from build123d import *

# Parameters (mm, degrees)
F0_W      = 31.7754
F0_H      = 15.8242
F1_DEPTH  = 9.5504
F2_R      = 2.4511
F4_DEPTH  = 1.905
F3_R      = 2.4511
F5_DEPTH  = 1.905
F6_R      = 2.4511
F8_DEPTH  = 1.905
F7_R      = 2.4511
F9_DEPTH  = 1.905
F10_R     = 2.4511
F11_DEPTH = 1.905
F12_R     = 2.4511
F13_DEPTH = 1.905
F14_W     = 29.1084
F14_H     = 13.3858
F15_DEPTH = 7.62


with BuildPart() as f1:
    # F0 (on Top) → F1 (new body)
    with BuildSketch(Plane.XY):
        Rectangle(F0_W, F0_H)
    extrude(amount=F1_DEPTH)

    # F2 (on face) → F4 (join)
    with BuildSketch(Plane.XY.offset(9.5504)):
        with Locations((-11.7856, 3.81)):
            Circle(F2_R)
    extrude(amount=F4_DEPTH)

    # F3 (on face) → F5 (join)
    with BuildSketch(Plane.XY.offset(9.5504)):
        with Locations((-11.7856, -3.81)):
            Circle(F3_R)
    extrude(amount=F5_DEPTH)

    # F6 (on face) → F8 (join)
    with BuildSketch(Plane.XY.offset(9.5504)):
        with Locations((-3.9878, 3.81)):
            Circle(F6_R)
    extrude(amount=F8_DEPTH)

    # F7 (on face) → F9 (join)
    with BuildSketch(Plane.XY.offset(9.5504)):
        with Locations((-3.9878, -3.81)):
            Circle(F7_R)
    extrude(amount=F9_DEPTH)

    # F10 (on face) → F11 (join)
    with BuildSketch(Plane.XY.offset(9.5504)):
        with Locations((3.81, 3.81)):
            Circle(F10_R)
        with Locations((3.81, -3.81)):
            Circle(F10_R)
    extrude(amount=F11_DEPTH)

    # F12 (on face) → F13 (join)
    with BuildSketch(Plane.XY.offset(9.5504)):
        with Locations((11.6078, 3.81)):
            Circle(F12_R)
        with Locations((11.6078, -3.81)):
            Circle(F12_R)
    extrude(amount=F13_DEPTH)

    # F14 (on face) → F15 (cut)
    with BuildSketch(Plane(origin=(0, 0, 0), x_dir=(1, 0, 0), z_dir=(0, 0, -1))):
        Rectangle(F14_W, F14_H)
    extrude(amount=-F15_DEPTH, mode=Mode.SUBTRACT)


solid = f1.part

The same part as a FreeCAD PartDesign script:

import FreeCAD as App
import Part
import Sketcher
Q = App.Units.Quantity

doc = App.newDocument("Part")
body = doc.addObject("PartDesign::Body", "Body")

sketch1 = doc.addObject("Sketcher::SketchObject", "Sketch")
body.addObject(sketch1)
sketch1.AttachmentSupport = (doc.XY_Plane, [""])
sketch1.MapMode = "FlatFace"
sketch1.addGeometry([
    Part.LineSegment(App.Vector(-16, 8, 0), App.Vector(-16, -8, 0)),
    Part.LineSegment(App.Vector(-16, -8, 0), App.Vector(16, -8, 0)),
    Part.LineSegment(App.Vector(16, -8, 0), App.Vector(16, 8, 0)),
    Part.LineSegment(App.Vector(16, 8, 0), App.Vector(-16, 8, 0)),
], False)
sketch1.addConstraint([
    Sketcher.Constraint("Coincident", 0, 2, 1, 1),
    Sketcher.Constraint("Coincident", 1, 2, 2, 1),
    Sketcher.Constraint("Coincident", 2, 2, 3, 1),
    Sketcher.Constraint("Coincident", 3, 2, 0, 1),
    Sketcher.Constraint("Vertical", 0),
    Sketcher.Constraint("Horizontal", 1),
    Sketcher.Constraint("Vertical", 2),
    Sketcher.Constraint("Horizontal", 3),
    Sketcher.Constraint("Symmetric", 0, 2, 2, 2, -1, 1),
    Sketcher.Constraint("DistanceX", 1, 1, 1, 2, Q("1.251 in")),
    Sketcher.Constraint("DistanceY", 0, 2, 0, 1, Q("0.623 in")),
])
pad1 = doc.addObject("PartDesign::Pad", "Pad")
body.addObject(pad1)
pad1.Profile = sketch1
pad1.Length = Q("0.376 in")

sketch2 = doc.addObject("Sketcher::SketchObject", "Sketch001")
body.addObject(sketch2)
sketch2.AttachmentSupport = (doc.XY_Plane, [""])
sketch2.MapMode = "FlatFace"
sketch2.AttachmentOffset = App.Placement(App.Vector(0, 0, 0.376 * 25.4), App.Rotation())
sketch2.addGeometry(Part.Circle(App.Vector(-11.8, 3.8, 0), App.Vector(0, 0, 1), 2.5), False)
sketch2.addConstraint([
    Sketcher.Constraint("Diameter", 0, Q("0.193 in")),
    Sketcher.Constraint("DistanceY", -1, 1, 0, 3, Q("0.15 in")),
    Sketcher.Constraint("DistanceX", 0, 3, -1, 1, Q("0.464 in")),
])
pad2 = doc.addObject("PartDesign::Pad", "Pad001")
body.addObject(pad2)
pad2.Profile = sketch2
pad2.Length = Q("0.075 in")

sketch3 = doc.addObject("Sketcher::SketchObject", "Sketch002")
body.addObject(sketch3)
sketch3.AttachmentSupport = (doc.XY_Plane, [""])
sketch3.MapMode = "FlatFace"
sketch3.AttachmentOffset = App.Placement(App.Vector(0, 0, 0.376 * 25.4), App.Rotation())
sketch3.addGeometry(Part.Circle(App.Vector(-11.8, -3.8, 0), App.Vector(0, 0, 1), 2.5), False)
sketch3.addConstraint([
    Sketcher.Constraint("Diameter", 0, Q("0.193 in")),
    Sketcher.Constraint("DistanceY", 0, 3, -1, 1, Q("0.15 in")),
    Sketcher.Constraint("DistanceX", 0, 3, -1, 1, Q("0.464 in")),
])
pad3 = doc.addObject("PartDesign::Pad", "Pad002")
body.addObject(pad3)
pad3.Profile = sketch3
pad3.Length = Q("0.075 in")

sketch4 = doc.addObject("Sketcher::SketchObject", "Sketch003")
body.addObject(sketch4)
sketch4.AttachmentSupport = (doc.XY_Plane, [""])
sketch4.MapMode = "FlatFace"
sketch4.AttachmentOffset = App.Placement(App.Vector(0, 0, 0.376 * 25.4), App.Rotation())
sketch4.addGeometry(Part.Circle(App.Vector(-4, 3.8, 0), App.Vector(0, 0, 1), 2.5), False)
sketch4.addConstraint([
    Sketcher.Constraint("Diameter", 0, Q("0.193 in")),
    Sketcher.Constraint("DistanceY", -1, 1, 0, 3, Q("0.15 in")),
    Sketcher.Constraint("DistanceX", 0, 3, -1, 1, Q("0.157 in")),
])
pad4 = doc.addObject("PartDesign::Pad", "Pad003")
body.addObject(pad4)
pad4.Profile = sketch4
pad4.Length = Q("0.075 in")

sketch5 = doc.addObject("Sketcher::SketchObject", "Sketch004")
body.addObject(sketch5)
sketch5.AttachmentSupport = (doc.XY_Plane, [""])
sketch5.MapMode = "FlatFace"
sketch5.AttachmentOffset = App.Placement(App.Vector(0, 0, 0.376 * 25.4), App.Rotation())
sketch5.addGeometry(Part.Circle(App.Vector(-4, -3.8, 0), App.Vector(0, 0, 1), 2.5), False)
sketch5.addConstraint([
    Sketcher.Constraint("Diameter", 0, Q("0.193 in")),
    Sketcher.Constraint("DistanceY", 0, 3, -1, 1, Q("0.15 in")),
    Sketcher.Constraint("DistanceX", 0, 3, -1, 1, Q("0.157 in")),
])
pad5 = doc.addObject("PartDesign::Pad", "Pad004")
body.addObject(pad5)
pad5.Profile = sketch5
pad5.Length = Q("0.075 in")

sketch6 = doc.addObject("Sketcher::SketchObject", "Sketch005")
body.addObject(sketch6)
sketch6.AttachmentSupport = (doc.XY_Plane, [""])
sketch6.MapMode = "FlatFace"
sketch6.AttachmentOffset = App.Placement(App.Vector(0, 0, 0.376 * 25.4), App.Rotation())
sketch6.addGeometry([
    Part.Circle(App.Vector(3.8, 3.8, 0), App.Vector(0, 0, 1), 2.5),
    Part.Circle(App.Vector(3.8, -3.8, 0), App.Vector(0, 0, 1), 2.5),
], False)
sketch6.addConstraint([
    Sketcher.Constraint("Equal", 0, 1),
    Sketcher.Constraint("Symmetric", 0, 3, 1, 3, -1),
    Sketcher.Constraint("Diameter", 0, Q("0.193 in")),
    Sketcher.Constraint("DistanceY", 1, 3, 0, 3, Q("0.3 in")),
    Sketcher.Constraint("DistanceX", -1, 1, 0, 3, Q("0.15 in")),
])
pad6 = doc.addObject("PartDesign::Pad", "Pad005")
body.addObject(pad6)
pad6.Profile = sketch6
pad6.Length = Q("0.075 in")

sketch7 = doc.addObject("Sketcher::SketchObject", "Sketch006")
body.addObject(sketch7)
sketch7.AttachmentSupport = (doc.XY_Plane, [""])
sketch7.MapMode = "FlatFace"
sketch7.AttachmentOffset = App.Placement(App.Vector(0, 0, 0.376 * 25.4), App.Rotation())
sketch7.addGeometry([
    Part.Circle(App.Vector(11.6, 3.8, 0), App.Vector(0, 0, 1), 2.5),
    Part.Circle(App.Vector(11.6, -3.8, 0), App.Vector(0, 0, 1), 2.5),
], False)
sketch7.addConstraint([
    Sketcher.Constraint("Equal", 0, 1),
    Sketcher.Constraint("Symmetric", 0, 3, 1, 3, -1),
    Sketcher.Constraint("Diameter", 0, Q("0.193 in")),
    Sketcher.Constraint("DistanceY", 1, 3, 0, 3, Q("0.3 in")),
    Sketcher.Constraint("DistanceX", -1, 1, 0, 3, Q("0.457 in")),
])
pad7 = doc.addObject("PartDesign::Pad", "Pad006")
body.addObject(pad7)
pad7.Profile = sketch7
pad7.Length = Q("0.075 in")

sketch8 = doc.addObject("Sketcher::SketchObject", "Sketch007")
body.addObject(sketch8)
sketch8.AttachmentSupport = (doc.XY_Plane, [""])
sketch8.MapMode = "FlatFace"
sketch8.addGeometry([
    Part.LineSegment(App.Vector(-15, -7, 0), App.Vector(-15, 7, 0)),
    Part.LineSegment(App.Vector(-15, 7, 0), App.Vector(15, 7, 0)),
    Part.LineSegment(App.Vector(15, 7, 0), App.Vector(15, -7, 0)),
    Part.LineSegment(App.Vector(15, -7, 0), App.Vector(-15, -7, 0)),
], False)
sketch8.addConstraint([
    Sketcher.Constraint("Coincident", 0, 2, 1, 1),
    Sketcher.Constraint("Coincident", 1, 2, 2, 1),
    Sketcher.Constraint("Coincident", 2, 2, 3, 1),
    Sketcher.Constraint("Coincident", 3, 2, 0, 1),
    Sketcher.Constraint("Vertical", 0),
    Sketcher.Constraint("Horizontal", 1),
    Sketcher.Constraint("Vertical", 2),
    Sketcher.Constraint("Horizontal", 3),
    Sketcher.Constraint("Symmetric", 0, 2, 2, 2, -1, 1),
    Sketcher.Constraint("DistanceX", 1, 1, 1, 2, Q("1.146 in")),
    Sketcher.Constraint("DistanceY", 0, 1, 0, 2, Q("0.527 in")),
])
pocket1 = doc.addObject("PartDesign::Pocket", "Pocket")
body.addObject(pocket1)
pocket1.Profile = sketch8
pocket1.Length = Q("0.3 in")
pocket1.Reversed = True

doc.recompute()
